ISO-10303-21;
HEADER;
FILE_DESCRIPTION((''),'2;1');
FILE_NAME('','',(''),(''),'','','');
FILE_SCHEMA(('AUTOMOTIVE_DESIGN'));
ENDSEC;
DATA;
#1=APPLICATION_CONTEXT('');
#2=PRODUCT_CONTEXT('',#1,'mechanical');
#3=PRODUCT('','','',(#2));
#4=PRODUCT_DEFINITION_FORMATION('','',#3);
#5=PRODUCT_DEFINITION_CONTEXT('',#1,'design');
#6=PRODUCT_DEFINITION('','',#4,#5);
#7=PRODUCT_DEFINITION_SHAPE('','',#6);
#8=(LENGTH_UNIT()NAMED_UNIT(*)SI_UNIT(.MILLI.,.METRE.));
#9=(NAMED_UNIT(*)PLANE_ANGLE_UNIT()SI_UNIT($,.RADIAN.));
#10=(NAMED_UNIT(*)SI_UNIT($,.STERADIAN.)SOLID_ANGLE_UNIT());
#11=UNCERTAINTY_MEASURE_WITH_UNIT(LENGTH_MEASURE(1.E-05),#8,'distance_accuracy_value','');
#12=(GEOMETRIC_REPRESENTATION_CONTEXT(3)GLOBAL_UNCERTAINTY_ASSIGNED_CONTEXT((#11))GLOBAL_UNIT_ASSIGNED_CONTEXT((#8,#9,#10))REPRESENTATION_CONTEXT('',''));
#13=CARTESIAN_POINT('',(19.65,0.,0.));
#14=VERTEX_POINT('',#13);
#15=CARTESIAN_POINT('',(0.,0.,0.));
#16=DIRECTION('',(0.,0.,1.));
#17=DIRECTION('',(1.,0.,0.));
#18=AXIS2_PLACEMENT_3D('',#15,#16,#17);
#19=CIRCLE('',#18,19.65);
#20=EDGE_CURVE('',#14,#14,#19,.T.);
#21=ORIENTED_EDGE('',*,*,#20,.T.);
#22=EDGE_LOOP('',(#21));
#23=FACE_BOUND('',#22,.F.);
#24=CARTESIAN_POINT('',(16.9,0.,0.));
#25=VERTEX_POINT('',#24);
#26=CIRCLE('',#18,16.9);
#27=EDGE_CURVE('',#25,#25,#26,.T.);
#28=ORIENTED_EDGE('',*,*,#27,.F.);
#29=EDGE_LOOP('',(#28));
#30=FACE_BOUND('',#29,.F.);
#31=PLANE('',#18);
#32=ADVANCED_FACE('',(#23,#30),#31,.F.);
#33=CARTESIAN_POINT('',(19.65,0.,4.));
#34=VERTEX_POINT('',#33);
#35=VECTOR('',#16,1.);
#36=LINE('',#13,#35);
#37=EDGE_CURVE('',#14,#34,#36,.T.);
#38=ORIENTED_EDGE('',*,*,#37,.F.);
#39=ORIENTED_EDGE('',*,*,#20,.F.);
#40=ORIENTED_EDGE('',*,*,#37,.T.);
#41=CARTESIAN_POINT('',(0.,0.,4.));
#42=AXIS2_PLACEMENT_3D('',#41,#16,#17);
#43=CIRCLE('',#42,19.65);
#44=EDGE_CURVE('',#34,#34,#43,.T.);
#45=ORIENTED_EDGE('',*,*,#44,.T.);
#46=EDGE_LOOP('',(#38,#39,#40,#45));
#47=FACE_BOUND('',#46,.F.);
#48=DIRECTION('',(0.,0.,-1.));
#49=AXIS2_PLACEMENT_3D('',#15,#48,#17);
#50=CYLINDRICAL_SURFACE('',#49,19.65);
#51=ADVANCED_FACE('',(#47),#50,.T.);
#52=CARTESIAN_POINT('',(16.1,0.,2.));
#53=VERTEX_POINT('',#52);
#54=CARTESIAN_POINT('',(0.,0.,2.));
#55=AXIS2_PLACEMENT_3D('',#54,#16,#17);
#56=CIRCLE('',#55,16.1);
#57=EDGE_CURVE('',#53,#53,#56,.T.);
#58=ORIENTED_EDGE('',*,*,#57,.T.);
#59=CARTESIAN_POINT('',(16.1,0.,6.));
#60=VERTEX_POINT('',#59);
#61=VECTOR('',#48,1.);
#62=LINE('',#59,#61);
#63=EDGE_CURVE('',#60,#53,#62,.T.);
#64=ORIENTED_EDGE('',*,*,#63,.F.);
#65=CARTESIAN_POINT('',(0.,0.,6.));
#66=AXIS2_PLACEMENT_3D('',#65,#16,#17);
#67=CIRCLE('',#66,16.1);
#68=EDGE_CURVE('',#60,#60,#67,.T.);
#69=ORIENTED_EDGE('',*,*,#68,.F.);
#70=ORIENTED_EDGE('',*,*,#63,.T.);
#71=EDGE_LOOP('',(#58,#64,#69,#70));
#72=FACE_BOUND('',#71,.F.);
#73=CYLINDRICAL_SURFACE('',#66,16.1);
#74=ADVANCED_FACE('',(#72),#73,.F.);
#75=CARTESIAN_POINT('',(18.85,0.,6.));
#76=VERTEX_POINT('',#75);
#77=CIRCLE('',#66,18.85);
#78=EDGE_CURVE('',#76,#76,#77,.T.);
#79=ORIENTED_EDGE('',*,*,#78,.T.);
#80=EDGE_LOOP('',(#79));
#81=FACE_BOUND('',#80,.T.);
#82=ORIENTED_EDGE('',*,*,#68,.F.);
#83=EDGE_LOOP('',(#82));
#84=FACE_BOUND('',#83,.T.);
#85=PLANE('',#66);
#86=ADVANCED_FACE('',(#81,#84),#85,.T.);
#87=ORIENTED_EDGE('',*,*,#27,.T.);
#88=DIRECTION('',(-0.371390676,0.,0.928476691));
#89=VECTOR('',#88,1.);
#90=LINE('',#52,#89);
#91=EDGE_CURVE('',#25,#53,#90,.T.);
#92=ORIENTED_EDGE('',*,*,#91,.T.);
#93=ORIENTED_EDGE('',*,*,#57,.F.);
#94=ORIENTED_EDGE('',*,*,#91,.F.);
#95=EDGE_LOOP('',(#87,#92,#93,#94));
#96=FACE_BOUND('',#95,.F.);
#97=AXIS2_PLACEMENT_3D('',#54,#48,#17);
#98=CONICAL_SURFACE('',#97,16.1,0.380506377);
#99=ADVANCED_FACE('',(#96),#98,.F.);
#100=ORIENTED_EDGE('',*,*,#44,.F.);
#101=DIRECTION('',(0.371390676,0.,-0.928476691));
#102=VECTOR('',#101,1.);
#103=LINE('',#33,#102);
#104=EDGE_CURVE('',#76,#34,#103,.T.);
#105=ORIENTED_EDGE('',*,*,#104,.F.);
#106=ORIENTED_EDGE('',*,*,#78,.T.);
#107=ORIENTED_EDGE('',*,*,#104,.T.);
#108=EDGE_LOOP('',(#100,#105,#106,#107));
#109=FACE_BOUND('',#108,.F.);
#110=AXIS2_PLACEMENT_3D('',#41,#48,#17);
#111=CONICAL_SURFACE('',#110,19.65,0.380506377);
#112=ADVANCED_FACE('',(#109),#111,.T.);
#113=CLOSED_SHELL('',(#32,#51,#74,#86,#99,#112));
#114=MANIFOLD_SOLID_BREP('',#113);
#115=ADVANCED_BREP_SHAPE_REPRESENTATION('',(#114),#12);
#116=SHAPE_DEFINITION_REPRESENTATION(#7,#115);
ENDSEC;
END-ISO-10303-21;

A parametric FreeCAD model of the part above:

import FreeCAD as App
import Part
import Sketcher

V = App.Vector


def edges_at(feature, points):
    """Names of the edges that pass closest to the given points."""
    edges = feature.Shape.Edges
    near = lambda p: min(range(len(edges)), key=lambda i: edges[i].distToShape(Part.Vertex(*p))[0])
    return sorted({f"Edge{near(p) + 1}" for p in points})

doc = App.newDocument("Part")
body = doc.addObject("PartDesign::Body", "Body")

# Sketch on XY plane
sketch1 = body.newObject("Sketcher::SketchObject", "Sketch")
sketch1.AttachmentSupport = (doc.getObject("XY_Plane"), [""])
sketch1.MapMode = "FlatFace"
sketch1.addGeometry(Part.Circle(V(0, 0, 0), V(0, 0, 1), 20), False)
sketch1.addConstraint([
    Sketcher.Constraint("Coincident", 0, 3, -1, 1),
    Sketcher.Constraint("Diameter", 0, 39.3),
])
pad1 = body.newObject("PartDesign::Pad", "Pad")
pad1.Profile = sketch1
pad1.Length = 6

# Sketch on XY plane
sketch2 = body.newObject("Sketcher::SketchObject", "Sketch001")
sketch2.AttachmentSupport = (doc.getObject("XY_Plane"), [""])
sketch2.MapMode = "FlatFace"
sketch2.AttachmentOffset = App.Placement(V(0, 0, 6), App.Rotation())
sketch2.addGeometry(Part.Circle(V(0, 0, 0), V(0, 0, 1), 16), False)
sketch2.addConstraint([
    Sketcher.Constraint("Coincident", 0, 3, -1, 1),
    Sketcher.Constraint("Diameter", 0, 32.2),
])
pocket1 = body.newObject("PartDesign::Pocket", "Pocket")
pocket1.Profile = sketch2
pocket1.Length = 25
doc.recompute()

chamfer = body.newObject("PartDesign::Chamfer", "Chamfer")
chamfer.Base = (pocket1, edges_at(pocket1, [(-16.1, 0, 0)]))
chamfer.ChamferType = "Two distances"
chamfer.Size = 0.8
chamfer.Size2 = 2
doc.recompute()

chamfer2 = body.newObject("PartDesign::Chamfer", "Chamfer001")
chamfer2.Base = (chamfer, edges_at(chamfer, [(-19.65, 0, 6)]))
chamfer2.ChamferType = "Two distances"
chamfer2.Size = 0.8
chamfer2.Size2 = 2
chamfer2.FlipDirection = True

doc.recompute()
